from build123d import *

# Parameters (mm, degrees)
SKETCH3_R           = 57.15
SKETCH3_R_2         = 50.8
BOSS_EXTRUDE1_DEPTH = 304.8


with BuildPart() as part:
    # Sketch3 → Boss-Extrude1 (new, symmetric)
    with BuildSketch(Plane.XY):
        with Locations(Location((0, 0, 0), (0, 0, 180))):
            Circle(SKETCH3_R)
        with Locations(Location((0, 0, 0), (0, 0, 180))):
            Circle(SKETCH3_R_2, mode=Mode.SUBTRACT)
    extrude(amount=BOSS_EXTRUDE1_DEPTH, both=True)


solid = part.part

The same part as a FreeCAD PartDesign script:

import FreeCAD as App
import Part
import Sketcher

V = App.Vector
Q = App.Units.Quantity

doc = App.newDocument("Part")
body = doc.addObject("PartDesign::Body", "Body")

# Sketch on XY plane
sketch1 = body.newObject("Sketcher::SketchObject", "Sketch")
sketch1.AttachmentSupport = (doc.getObject("XY_Plane"), [""])
sketch1.MapMode = "FlatFace"
sketch1.addGeometry([
    Part.Circle(V(0, 0, 0), V(0, 0, 1), 57),
    Part.Circle(V(0, 0, 0), V(0, 0, 1), 51),
], False)
sketch1.addConstraint([
    Sketcher.Constraint("Coincident", 0, 3, -1, 1),
    Sketcher.Constraint("Coincident", 1, 3, -1, 1),
    Sketcher.Constraint("Diameter", 1, Q("4 in")),
    Sketcher.Constraint("Diameter", 0, Q("4.5 in")),
])
pad1 = body.newObject("PartDesign::Pad", "Pad")
pad1.Profile = sketch1
pad1.Length = Q("24 in")
pad1.Midplane = True

doc.recompute()
